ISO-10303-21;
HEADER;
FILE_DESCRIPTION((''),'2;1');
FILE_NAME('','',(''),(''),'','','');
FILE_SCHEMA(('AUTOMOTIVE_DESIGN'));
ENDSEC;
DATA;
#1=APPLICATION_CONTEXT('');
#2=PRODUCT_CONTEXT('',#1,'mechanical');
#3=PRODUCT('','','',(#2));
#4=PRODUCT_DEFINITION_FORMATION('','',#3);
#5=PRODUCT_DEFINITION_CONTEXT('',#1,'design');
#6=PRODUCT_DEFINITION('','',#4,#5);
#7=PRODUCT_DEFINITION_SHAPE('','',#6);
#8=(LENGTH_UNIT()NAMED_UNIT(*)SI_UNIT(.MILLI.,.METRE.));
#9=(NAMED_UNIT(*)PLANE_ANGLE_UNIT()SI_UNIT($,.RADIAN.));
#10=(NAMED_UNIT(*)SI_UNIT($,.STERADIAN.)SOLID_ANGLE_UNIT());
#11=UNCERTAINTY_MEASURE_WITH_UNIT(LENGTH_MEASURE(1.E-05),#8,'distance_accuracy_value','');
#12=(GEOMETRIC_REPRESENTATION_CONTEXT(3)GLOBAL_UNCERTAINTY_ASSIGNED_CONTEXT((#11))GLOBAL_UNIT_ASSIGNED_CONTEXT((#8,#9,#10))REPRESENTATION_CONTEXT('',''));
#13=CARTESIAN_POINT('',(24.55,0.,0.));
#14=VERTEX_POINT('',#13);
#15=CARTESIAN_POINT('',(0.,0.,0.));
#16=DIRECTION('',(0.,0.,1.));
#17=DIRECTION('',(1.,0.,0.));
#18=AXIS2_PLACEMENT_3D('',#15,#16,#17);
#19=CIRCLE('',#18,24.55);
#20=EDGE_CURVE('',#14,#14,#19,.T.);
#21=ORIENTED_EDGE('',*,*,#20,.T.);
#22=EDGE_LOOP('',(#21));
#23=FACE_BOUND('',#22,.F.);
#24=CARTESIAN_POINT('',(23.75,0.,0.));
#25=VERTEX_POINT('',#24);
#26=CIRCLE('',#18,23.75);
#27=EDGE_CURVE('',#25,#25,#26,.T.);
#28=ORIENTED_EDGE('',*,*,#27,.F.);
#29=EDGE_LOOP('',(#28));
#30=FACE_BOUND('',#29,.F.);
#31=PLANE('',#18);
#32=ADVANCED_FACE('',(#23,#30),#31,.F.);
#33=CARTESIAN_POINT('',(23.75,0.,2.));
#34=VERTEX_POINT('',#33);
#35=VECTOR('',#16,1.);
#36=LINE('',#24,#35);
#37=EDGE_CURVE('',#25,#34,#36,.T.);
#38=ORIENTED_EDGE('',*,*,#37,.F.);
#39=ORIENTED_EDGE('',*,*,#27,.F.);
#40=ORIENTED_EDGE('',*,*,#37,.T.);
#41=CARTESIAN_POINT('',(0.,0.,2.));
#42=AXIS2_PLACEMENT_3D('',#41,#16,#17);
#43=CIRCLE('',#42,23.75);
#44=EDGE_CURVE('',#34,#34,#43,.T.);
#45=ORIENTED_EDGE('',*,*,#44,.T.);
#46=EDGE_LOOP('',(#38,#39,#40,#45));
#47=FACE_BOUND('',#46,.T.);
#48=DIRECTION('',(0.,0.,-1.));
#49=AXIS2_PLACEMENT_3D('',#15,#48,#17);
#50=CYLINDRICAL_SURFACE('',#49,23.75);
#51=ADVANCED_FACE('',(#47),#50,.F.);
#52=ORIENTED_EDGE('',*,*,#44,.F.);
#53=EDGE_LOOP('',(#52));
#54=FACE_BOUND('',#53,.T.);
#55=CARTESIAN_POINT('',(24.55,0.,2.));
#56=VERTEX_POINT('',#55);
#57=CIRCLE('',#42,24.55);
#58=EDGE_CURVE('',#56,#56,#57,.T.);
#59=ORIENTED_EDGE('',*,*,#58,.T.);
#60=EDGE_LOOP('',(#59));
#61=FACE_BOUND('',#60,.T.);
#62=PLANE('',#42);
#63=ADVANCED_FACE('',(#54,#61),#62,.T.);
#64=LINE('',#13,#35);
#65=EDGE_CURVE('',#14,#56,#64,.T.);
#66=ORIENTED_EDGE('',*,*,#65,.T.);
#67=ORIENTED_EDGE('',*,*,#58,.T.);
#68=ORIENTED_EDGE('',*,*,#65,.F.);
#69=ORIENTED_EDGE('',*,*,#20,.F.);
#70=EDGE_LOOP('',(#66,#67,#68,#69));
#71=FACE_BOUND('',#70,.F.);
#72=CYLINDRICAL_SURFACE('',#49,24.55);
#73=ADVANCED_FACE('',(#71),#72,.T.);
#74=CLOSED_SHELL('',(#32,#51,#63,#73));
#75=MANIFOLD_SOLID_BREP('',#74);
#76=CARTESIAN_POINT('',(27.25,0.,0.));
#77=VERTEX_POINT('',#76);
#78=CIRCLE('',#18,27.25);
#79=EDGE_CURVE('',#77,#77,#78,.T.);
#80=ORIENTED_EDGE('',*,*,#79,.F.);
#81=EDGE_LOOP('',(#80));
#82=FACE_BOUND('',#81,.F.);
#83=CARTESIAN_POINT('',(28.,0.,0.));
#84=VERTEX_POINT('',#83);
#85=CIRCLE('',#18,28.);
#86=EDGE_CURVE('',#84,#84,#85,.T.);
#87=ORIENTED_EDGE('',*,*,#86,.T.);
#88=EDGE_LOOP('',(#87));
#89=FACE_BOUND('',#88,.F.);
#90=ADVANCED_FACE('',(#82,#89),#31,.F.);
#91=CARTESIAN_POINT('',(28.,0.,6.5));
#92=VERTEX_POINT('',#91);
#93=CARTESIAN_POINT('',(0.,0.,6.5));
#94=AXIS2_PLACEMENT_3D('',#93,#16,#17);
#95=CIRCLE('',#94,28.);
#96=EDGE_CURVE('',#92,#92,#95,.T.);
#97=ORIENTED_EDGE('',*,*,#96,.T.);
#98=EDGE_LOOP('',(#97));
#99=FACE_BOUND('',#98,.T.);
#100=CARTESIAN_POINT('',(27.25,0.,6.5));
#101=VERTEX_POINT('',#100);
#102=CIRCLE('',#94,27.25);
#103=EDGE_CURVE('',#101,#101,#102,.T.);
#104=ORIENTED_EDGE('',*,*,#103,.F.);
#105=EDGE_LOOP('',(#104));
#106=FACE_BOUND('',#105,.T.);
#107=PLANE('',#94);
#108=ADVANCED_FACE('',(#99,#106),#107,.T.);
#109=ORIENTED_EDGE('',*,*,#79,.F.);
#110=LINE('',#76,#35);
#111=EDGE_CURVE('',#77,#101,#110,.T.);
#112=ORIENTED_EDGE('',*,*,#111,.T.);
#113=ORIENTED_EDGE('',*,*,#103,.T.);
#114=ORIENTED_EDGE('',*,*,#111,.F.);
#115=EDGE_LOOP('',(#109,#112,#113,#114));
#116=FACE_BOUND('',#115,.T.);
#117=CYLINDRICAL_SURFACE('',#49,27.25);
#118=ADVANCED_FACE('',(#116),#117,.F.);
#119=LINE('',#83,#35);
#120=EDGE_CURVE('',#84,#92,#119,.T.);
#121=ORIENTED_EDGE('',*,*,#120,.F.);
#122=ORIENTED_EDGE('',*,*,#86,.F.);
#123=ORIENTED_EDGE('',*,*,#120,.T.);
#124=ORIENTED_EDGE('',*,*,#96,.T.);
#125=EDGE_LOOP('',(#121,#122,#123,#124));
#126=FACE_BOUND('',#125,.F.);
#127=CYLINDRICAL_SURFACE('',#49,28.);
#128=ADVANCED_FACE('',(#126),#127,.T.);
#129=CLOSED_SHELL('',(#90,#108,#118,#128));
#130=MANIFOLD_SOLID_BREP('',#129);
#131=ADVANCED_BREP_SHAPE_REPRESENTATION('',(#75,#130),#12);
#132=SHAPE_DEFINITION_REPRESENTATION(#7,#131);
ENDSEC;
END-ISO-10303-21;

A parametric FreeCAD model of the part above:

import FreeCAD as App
import Part
import Sketcher
from FreeCAD import Vector
Q = App.Units.Quantity

doc = App.newDocument("Part")
body = doc.addObject("PartDesign::Body", "Body")

sketch1 = doc.addObject("Sketcher::SketchObject", "Sketch")
body.addObject(sketch1)
sketch1.AttachmentSupport = (doc.XY_Plane, [""])
sketch1.MapMode = "FlatFace"
sketch1.addGeometry(Part.Circle(Vector(0, 0, 0), Vector(0, 0, 1), 28), False)
sketch1.addGeometry(Part.Circle(Vector(0, 0, 0), Vector(0, 0, 1), 27), False)
sketch1.addConstraint(Sketcher.Constraint("Coincident", 0, 3, -1, 1))
sketch1.addConstraint(Sketcher.Constraint("Coincident", 1, 3, -1, 1))
sketch1.addConstraint(Sketcher.Constraint("Diameter", 0, Q("56 mm")))
sketch1.addConstraint(Sketcher.Constraint("Diameter", 1, Q("54.5 mm")))
pad1 = doc.addObject("PartDesign::Pad", "Pad")
body.addObject(pad1)
pad1.Profile = sketch1
pad1.Length = 6.5
body2 = doc.addObject("PartDesign::Body", "Body001")

sketch2 = doc.addObject("Sketcher::SketchObject", "Sketch001")
body2.addObject(sketch2)
sketch2.AttachmentSupport = (doc.getObject("XY_Plane001"), [""])
sketch2.MapMode = "FlatFace"
sketch2.addGeometry(Part.Circle(Vector(0, 0, 0), Vector(0, 0, 1), 25), False)
sketch2.addGeometry(Part.Circle(Vector(0, 0, 0), Vector(0, 0, 1), 24), False)
sketch2.addConstraint(Sketcher.Constraint("Coincident", 0, 3, -1, 1))
sketch2.addConstraint(Sketcher.Constraint("Coincident", 1, 3, -1, 1))
sketch2.addConstraint(Sketcher.Constraint("Diameter", 0, Q("49.1 mm")))
sketch2.addConstraint(Sketcher.Constraint("Diameter", 1, Q("47.5 mm")))
pad2 = doc.addObject("PartDesign::Pad", "Pad001")
body2.addObject(pad2)
pad2.Profile = sketch2
pad2.Length = 2

doc.recompute()
